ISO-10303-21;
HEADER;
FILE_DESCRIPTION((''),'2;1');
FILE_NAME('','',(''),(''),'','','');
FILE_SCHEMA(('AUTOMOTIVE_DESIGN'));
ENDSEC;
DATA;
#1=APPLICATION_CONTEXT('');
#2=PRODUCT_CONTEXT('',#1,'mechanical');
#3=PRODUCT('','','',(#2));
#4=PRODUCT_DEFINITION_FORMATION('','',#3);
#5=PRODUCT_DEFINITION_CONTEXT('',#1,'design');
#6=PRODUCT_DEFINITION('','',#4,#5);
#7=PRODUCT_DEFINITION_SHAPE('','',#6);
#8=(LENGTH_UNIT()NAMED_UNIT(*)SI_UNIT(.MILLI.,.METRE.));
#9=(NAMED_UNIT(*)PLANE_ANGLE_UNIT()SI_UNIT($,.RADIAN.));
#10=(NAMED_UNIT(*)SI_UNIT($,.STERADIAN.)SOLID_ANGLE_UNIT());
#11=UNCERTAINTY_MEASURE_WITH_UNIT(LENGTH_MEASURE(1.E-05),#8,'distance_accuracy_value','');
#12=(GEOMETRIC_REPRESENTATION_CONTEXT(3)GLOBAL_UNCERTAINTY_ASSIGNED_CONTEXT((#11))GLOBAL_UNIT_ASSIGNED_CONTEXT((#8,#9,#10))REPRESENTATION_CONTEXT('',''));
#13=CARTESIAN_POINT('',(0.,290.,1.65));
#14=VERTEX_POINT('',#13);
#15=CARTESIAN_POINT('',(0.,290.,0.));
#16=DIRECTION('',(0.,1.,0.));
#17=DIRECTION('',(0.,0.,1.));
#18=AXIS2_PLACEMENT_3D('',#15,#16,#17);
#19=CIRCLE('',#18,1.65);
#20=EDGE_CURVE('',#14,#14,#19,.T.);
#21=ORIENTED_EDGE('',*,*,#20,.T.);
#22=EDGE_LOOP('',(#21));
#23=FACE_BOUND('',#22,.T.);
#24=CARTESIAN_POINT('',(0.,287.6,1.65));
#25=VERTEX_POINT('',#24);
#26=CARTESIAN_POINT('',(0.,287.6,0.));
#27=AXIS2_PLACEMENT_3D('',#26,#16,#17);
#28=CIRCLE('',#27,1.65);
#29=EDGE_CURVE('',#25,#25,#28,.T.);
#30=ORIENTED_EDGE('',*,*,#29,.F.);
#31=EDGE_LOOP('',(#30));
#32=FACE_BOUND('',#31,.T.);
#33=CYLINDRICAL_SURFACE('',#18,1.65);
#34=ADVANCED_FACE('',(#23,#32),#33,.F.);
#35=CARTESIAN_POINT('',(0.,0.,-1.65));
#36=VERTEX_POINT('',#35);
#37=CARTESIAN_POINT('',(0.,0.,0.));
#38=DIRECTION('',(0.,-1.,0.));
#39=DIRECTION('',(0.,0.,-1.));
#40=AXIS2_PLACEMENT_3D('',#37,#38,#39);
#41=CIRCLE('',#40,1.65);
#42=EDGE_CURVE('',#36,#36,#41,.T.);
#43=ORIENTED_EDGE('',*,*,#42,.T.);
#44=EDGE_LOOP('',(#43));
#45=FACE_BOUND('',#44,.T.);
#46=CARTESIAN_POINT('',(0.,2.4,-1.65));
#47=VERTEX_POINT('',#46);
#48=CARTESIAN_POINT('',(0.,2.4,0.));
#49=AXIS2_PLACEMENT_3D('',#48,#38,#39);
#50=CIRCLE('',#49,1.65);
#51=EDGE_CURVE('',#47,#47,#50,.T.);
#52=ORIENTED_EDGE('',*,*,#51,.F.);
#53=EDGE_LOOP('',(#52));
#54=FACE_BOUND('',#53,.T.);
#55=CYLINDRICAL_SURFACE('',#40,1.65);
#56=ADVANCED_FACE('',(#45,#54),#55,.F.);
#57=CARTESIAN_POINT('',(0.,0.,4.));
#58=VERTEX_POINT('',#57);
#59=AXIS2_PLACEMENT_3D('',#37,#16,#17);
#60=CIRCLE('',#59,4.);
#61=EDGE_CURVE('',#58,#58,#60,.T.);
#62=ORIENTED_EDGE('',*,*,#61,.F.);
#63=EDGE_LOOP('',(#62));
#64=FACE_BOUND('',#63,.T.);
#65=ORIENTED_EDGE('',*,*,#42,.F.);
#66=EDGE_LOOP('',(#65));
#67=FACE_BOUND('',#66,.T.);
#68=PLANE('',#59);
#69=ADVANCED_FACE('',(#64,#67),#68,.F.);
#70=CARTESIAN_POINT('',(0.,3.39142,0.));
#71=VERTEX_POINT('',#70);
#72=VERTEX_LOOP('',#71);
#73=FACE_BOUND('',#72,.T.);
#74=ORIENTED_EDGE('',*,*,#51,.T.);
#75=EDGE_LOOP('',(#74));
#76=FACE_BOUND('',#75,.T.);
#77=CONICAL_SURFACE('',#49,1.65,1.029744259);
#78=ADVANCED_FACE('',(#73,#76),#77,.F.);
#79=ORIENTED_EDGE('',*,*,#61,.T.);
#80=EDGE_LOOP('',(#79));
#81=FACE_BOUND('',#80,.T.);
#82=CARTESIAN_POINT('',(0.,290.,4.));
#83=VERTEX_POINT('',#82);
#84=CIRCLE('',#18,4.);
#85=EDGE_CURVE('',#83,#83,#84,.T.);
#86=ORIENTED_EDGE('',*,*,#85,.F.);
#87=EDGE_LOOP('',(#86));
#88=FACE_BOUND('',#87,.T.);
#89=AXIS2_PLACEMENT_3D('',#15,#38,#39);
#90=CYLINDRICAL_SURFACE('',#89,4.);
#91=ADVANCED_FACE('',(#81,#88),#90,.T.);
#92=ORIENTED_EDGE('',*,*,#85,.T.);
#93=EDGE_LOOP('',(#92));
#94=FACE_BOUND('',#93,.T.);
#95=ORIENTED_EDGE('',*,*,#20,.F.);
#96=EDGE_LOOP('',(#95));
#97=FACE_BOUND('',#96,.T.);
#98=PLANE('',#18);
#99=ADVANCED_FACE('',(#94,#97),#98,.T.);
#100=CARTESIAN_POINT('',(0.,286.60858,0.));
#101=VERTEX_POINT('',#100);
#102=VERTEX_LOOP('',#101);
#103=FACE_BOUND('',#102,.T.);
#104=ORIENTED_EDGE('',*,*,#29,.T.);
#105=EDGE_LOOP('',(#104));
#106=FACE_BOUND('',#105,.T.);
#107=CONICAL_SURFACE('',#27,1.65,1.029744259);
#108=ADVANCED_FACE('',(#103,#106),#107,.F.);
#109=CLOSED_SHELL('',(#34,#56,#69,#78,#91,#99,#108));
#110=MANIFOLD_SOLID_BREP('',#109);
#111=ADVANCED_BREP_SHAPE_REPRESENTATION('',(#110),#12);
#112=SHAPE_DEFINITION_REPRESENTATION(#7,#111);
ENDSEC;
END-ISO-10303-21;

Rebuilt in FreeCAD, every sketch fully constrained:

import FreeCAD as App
import Part
import Sketcher
from FreeCAD import Vector
Q = App.Units.Quantity

doc = App.newDocument("Part")
body = doc.addObject("PartDesign::Body", "Body")

sketch1 = doc.addObject("Sketcher::SketchObject", "Sketch")
body.addObject(sketch1)
sketch1.AttachmentSupport = (doc.XZ_Plane, [""])
sketch1.MapMode = "FlatFace"
sketch1.addGeometry(Part.Circle(Vector(0, 0, 0), Vector(0, 0, 1), 4), False)
sketch1.addConstraint([
    Sketcher.Constraint("Coincident", 0, 3, -1, 1),
    Sketcher.Constraint("Diameter", 0, Q("8 mm")),
])
pad1 = doc.addObject("PartDesign::Pad", "Pad")
body.addObject(pad1)
pad1.Profile = sketch1
pad1.Length = 290
pad1.Reversed = True

sketch2 = doc.addObject("Sketcher::SketchObject", "Sketch001")
body.addObject(sketch2)
sketch2.AttachmentSupport = (doc.XZ_Plane, [""])
sketch2.MapMode = "FlatFace"
sketch2.AttachmentOffset = App.Placement(Vector(0, 0, -290), App.Rotation())
sketch2.addGeometry(Part.Circle(Vector(0, 0, 0), Vector(0, 0, 1), 1.6), False)
sketch2.addConstraint([
    Sketcher.Constraint("Coincident", 0, 3, -1, 1),
    Sketcher.Constraint("Diameter", 0, Q("3.3 mm")),
])
doc.recompute()
hole = doc.addObject("PartDesign::Hole", "Hole")
body.addObject(hole)
hole.Profile = sketch2
hole.ThreadType = "None"
hole.Diameter = 3.3
hole.DepthType = "Dimension"
hole.Depth = 2.4
hole.DrillPoint = "Angled"
hole.DrillPointAngle = 118
hole.Reversed = True

sketch3 = doc.addObject("Sketcher::SketchObject", "Sketch002")
body.addObject(sketch3)
sketch3.AttachmentSupport = (doc.XZ_Plane, [""])
sketch3.MapMode = "FlatFace"
sketch3.addGeometry(Part.Circle(Vector(0, 0, 0), Vector(0, 0, 1), 1.6), False)
sketch3.addConstraint([
    Sketcher.Constraint("Coincident", 0, 3, -1, 1),
    Sketcher.Constraint("Diameter", 0, Q("3.3 mm")),
])
doc.recompute()
hole2 = doc.addObject("PartDesign::Hole", "Hole001")
body.addObject(hole2)
hole2.Profile = sketch3
hole2.ThreadType = "None"
hole2.Diameter = 3.3
hole2.DepthType = "Dimension"
hole2.Depth = 2.4
hole2.DrillPoint = "Angled"
hole2.DrillPointAngle = 118

doc.recompute()
